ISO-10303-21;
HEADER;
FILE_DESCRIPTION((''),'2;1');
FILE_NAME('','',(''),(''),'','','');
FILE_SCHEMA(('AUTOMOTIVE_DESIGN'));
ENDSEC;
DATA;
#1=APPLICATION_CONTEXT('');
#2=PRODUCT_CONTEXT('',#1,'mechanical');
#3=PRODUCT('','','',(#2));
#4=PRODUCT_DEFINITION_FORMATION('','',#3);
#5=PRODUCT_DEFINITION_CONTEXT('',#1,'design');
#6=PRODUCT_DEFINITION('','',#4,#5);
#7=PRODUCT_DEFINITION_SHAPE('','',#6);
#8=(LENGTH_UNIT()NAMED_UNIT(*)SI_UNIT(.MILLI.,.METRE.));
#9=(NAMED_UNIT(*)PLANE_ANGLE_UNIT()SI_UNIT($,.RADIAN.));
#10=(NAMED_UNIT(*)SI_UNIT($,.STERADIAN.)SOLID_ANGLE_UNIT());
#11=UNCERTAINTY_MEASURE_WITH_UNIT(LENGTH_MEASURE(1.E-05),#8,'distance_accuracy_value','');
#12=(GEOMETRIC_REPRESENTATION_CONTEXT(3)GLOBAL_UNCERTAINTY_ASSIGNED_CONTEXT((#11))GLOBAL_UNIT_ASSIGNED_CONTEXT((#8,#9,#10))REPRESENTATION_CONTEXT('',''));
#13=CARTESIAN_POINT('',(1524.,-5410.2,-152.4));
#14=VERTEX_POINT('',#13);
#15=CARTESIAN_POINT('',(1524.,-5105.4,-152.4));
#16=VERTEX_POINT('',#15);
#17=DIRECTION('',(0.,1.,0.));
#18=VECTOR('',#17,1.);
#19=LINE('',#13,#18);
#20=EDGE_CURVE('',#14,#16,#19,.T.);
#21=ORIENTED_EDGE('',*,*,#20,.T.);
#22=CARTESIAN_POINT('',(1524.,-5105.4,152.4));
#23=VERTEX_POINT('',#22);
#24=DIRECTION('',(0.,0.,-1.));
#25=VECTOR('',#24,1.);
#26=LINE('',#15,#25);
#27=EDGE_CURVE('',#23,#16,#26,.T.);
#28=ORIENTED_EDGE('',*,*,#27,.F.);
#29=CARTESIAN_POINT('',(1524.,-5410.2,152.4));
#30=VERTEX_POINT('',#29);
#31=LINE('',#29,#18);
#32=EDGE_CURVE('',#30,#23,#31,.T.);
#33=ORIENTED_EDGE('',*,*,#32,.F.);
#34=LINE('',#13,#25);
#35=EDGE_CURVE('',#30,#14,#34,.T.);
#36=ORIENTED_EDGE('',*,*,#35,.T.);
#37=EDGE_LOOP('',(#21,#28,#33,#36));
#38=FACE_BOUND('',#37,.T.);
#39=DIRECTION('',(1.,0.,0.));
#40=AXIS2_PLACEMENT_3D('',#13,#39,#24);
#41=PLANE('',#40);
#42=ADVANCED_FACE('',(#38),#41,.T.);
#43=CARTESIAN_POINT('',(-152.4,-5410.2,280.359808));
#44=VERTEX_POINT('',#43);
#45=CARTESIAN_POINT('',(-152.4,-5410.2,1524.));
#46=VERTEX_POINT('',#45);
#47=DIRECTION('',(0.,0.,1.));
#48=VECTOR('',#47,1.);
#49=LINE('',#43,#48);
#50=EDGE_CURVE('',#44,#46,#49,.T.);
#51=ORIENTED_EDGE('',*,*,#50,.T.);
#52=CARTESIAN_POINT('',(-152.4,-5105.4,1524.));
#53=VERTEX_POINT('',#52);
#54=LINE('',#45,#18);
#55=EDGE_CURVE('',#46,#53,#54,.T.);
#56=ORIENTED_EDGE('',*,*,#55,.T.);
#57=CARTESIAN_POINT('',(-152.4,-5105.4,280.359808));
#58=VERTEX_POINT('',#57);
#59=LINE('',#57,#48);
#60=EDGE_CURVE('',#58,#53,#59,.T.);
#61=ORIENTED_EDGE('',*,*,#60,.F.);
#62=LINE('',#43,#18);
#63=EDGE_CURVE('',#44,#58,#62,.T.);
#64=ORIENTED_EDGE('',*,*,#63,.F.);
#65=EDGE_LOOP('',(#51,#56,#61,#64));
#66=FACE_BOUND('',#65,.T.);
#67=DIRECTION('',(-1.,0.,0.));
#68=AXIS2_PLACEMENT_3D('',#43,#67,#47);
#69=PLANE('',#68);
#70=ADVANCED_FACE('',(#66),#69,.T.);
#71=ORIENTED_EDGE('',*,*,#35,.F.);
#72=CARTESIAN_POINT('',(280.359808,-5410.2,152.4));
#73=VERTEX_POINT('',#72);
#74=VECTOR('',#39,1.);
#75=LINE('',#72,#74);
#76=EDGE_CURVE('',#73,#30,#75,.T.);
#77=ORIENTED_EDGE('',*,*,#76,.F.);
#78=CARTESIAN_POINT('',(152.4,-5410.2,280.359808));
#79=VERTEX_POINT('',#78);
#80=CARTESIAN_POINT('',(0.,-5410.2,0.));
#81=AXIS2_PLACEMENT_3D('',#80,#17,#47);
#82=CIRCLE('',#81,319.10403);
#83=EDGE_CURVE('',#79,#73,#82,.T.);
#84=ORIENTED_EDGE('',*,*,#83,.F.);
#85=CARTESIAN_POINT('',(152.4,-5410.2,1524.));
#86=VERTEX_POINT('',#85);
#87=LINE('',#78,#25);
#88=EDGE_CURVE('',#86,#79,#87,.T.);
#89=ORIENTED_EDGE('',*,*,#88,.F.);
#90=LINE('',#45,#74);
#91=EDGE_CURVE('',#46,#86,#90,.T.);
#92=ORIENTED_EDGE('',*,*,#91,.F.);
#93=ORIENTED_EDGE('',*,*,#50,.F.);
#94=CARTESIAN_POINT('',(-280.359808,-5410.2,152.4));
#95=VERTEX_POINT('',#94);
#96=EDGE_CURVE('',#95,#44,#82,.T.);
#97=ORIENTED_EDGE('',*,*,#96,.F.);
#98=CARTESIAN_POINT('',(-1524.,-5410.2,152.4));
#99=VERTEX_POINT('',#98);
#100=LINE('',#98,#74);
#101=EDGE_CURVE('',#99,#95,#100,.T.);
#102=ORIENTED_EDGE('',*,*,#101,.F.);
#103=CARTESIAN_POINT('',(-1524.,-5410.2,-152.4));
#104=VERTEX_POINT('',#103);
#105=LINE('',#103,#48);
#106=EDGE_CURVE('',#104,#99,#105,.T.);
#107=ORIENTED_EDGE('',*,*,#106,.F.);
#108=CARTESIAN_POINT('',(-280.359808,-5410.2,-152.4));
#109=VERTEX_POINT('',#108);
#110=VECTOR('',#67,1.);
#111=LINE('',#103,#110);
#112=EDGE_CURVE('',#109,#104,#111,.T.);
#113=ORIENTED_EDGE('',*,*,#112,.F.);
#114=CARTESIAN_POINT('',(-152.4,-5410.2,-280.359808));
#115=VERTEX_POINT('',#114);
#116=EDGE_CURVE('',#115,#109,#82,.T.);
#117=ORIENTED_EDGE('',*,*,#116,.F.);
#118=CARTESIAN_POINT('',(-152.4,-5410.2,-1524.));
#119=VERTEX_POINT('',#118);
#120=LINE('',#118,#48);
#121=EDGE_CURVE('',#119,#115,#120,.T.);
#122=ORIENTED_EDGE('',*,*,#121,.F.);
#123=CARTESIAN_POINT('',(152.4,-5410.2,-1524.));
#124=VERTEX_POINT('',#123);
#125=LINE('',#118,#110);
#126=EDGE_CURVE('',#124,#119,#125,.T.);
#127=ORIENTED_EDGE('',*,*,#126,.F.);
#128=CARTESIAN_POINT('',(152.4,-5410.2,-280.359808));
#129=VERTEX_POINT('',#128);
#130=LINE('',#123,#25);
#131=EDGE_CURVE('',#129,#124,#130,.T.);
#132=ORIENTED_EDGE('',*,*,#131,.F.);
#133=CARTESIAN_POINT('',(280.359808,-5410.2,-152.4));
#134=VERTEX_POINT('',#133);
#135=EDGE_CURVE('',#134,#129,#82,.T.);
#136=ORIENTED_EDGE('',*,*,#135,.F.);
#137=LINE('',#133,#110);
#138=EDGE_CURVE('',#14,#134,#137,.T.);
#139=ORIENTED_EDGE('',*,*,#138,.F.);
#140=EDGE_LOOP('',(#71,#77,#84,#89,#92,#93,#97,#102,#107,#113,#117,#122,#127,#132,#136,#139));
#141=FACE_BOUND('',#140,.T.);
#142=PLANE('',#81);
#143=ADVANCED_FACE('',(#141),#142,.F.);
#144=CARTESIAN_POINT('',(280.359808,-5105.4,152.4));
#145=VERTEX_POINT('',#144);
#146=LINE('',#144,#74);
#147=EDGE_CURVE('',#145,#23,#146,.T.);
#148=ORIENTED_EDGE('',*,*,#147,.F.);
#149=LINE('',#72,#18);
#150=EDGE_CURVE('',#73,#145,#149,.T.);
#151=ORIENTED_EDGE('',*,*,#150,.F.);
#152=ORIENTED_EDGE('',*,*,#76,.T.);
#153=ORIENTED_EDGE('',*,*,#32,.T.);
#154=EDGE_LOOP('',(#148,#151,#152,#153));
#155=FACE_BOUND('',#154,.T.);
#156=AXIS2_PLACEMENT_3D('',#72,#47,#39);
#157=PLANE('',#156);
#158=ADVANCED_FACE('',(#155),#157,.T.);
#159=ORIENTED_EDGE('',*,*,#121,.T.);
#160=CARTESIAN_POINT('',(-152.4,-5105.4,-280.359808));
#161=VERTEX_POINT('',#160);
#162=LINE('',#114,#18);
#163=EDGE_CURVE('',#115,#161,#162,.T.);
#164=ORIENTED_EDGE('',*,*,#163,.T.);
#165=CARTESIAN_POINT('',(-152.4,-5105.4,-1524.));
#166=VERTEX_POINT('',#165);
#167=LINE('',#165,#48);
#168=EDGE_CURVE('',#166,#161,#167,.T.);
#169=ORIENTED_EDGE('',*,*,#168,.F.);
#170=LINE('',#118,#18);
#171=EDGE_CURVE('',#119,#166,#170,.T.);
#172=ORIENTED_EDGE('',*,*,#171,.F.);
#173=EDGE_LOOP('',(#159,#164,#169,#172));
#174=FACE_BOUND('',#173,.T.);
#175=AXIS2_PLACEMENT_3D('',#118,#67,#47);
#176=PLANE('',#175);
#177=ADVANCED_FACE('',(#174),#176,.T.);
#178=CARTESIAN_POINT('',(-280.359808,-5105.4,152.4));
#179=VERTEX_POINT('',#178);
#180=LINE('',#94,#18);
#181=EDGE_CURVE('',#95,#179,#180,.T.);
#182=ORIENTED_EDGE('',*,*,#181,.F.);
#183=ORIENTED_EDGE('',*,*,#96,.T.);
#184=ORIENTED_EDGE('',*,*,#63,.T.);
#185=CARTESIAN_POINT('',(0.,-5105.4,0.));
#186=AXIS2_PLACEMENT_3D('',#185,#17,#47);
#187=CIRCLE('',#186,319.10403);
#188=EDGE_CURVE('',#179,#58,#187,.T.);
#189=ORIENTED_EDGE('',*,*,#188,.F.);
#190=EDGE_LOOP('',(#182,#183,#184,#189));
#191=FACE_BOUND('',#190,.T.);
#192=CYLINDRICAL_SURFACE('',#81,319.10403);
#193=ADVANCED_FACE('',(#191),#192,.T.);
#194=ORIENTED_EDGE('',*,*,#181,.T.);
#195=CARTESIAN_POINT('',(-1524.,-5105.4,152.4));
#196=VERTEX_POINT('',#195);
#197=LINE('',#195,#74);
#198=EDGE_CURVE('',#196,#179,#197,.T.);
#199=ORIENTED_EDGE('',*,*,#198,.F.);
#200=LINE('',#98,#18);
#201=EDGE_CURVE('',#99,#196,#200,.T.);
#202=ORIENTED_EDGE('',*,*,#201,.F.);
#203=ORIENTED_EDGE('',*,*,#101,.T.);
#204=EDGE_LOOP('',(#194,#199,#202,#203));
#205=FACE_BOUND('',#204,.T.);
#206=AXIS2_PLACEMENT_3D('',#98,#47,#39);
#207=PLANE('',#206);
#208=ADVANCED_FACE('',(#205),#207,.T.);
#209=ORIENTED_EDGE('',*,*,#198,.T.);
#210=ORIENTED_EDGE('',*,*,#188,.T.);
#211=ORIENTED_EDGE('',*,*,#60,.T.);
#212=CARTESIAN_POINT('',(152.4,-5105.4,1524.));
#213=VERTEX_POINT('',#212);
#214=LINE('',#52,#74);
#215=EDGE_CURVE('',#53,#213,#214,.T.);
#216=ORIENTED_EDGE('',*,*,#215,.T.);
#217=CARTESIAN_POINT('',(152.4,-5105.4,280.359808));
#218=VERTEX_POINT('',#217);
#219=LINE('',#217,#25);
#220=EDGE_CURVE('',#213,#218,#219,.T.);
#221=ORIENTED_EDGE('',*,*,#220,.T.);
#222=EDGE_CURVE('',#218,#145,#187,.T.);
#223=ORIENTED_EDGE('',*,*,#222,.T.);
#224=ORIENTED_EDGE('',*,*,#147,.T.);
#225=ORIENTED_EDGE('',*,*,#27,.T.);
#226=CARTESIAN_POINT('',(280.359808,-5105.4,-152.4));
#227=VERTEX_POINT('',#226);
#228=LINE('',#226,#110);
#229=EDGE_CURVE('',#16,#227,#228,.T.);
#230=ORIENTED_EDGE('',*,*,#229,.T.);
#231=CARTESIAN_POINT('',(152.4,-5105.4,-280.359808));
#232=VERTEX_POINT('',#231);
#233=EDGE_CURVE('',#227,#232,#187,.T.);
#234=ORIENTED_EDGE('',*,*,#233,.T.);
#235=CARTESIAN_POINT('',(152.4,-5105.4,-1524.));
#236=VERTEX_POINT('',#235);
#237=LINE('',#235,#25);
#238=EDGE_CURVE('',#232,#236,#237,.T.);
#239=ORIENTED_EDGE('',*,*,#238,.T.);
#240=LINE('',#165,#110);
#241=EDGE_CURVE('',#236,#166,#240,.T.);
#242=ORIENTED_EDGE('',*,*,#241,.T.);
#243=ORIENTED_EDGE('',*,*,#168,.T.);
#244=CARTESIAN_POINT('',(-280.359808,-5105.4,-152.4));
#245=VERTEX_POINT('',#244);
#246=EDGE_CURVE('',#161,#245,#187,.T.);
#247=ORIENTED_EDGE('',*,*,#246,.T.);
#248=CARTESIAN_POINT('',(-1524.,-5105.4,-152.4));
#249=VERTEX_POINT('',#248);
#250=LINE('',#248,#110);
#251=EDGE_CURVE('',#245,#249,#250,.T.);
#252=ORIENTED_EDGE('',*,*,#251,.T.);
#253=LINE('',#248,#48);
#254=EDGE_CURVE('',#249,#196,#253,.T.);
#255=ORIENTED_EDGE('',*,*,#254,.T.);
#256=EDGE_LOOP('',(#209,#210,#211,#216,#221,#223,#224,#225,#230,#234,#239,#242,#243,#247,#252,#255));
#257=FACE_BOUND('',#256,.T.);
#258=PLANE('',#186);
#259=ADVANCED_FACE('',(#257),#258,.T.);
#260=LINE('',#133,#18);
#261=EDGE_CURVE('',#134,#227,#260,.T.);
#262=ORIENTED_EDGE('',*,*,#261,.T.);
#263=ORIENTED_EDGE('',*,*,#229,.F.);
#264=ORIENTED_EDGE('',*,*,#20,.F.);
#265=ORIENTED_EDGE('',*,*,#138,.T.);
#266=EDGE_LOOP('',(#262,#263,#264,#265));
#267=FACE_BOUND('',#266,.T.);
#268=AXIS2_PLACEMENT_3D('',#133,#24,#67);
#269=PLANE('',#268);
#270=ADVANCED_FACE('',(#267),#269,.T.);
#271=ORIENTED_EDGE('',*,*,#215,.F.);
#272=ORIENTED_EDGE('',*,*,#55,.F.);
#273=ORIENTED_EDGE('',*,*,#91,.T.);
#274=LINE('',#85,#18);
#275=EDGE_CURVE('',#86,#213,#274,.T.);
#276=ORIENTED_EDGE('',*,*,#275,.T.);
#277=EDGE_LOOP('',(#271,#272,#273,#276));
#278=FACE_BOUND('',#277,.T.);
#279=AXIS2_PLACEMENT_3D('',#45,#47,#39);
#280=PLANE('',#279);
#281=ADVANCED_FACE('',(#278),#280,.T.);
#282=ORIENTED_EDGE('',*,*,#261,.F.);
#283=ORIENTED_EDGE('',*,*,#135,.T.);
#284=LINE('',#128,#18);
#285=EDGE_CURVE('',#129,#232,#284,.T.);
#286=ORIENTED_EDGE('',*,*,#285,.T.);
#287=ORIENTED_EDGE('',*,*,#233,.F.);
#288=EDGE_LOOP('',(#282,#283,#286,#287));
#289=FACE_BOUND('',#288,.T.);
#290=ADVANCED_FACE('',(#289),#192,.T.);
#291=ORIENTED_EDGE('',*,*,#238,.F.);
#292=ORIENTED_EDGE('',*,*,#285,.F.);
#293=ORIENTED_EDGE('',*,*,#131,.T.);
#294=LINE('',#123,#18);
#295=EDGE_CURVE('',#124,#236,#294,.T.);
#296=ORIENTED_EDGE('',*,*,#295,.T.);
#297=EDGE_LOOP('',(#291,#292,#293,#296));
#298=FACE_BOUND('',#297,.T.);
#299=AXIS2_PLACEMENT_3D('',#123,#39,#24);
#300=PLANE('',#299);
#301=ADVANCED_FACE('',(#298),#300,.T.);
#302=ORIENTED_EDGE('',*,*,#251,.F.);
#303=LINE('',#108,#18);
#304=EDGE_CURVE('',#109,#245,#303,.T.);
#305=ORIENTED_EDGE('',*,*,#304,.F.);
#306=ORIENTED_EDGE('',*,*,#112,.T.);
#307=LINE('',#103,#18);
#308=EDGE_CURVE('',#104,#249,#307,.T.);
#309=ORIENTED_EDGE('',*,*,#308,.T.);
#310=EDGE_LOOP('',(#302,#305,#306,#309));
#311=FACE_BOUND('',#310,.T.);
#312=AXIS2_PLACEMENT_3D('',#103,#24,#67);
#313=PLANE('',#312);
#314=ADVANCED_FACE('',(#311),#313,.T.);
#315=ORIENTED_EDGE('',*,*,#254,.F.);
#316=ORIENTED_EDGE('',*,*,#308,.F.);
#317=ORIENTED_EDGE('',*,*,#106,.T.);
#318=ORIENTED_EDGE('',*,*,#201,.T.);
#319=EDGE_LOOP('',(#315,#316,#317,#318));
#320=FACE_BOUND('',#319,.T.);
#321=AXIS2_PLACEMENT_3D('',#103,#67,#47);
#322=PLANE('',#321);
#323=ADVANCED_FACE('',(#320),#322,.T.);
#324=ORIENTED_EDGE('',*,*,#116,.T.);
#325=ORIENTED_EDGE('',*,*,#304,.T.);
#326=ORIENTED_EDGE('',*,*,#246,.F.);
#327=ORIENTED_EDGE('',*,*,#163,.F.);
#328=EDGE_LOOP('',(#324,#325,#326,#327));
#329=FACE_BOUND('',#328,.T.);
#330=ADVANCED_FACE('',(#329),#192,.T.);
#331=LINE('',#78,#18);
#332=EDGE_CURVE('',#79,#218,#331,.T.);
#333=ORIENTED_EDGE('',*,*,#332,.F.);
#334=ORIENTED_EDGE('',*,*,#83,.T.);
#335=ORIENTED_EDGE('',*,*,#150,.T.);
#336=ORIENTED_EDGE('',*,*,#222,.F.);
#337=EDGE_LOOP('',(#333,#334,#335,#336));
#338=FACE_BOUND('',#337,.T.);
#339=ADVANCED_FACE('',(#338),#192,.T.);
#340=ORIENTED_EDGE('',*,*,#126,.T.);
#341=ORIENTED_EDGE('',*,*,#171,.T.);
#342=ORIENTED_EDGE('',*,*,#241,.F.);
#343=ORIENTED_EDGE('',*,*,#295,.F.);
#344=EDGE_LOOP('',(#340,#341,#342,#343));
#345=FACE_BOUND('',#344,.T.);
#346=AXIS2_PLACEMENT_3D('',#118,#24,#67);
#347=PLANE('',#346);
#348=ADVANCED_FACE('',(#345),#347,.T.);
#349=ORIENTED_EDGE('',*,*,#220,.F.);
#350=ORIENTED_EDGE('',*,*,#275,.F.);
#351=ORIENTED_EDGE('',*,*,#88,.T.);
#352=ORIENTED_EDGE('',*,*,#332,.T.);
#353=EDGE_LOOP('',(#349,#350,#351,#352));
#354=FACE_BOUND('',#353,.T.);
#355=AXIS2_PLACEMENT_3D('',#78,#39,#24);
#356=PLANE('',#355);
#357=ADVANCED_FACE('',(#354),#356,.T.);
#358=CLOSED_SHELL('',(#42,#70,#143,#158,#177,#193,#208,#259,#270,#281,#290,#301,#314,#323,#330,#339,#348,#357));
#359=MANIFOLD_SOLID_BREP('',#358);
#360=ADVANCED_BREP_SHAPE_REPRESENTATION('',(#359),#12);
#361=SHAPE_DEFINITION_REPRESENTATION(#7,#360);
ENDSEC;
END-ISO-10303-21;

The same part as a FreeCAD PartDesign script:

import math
import FreeCAD as App
import Part
import Sketcher
Q = App.Units.Quantity

doc = App.newDocument("Part")
body = doc.addObject("PartDesign::Body", "Body")

# Sketch on XZ plane
sketch1 = doc.addObject("Sketcher::SketchObject", "Sketch")
body.addObject(sketch1)
sketch1.AttachmentSupport = (doc.XZ_Plane, [""])
sketch1.MapMode = "FlatFace"
sketch1.AttachmentOffset = App.Placement(App.Vector(0, 0, 201 * 25.4), App.Rotation())
sketch1.addGeometry(Part.LineSegment(App.Vector(-152, 280, 0), App.Vector(-152, 1524, 0)), False)
sketch1.addGeometry(Part.LineSegment(App.Vector(-152, 1524, 0), App.Vector(152, 1524, 0)), False)
sketch1.addGeometry(Part.LineSegment(App.Vector(152, 1524, 0), App.Vector(152, 280, 0)), False)
sketch1.addGeometry(Part.ArcOfCircle(Part.Circle(App.Vector(0, 0, 0), App.Vector(0, 0, 1), 319), math.radians(29), math.radians(61)), False)
sketch1.addGeometry(Part.LineSegment(App.Vector(280, 152, 0), App.Vector(1524, 152, 0)), False)
sketch1.addGeometry(Part.LineSegment(App.Vector(1524, 152, 0), App.Vector(1524, -152, 0)), False)
sketch1.addGeometry(Part.LineSegment(App.Vector(1524, -152, 0), App.Vector(280, -152, 0)), False)
sketch1.addGeometry(Part.ArcOfCircle(Part.Circle(App.Vector(0, 0, 0), App.Vector(0, 0, 1), 319), math.radians(-61), math.radians(-29)), False)
sketch1.addGeometry(Part.LineSegment(App.Vector(152, -280, 0), App.Vector(152, -1524, 0)), False)
sketch1.addGeometry(Part.LineSegment(App.Vector(152, -1524, 0), App.Vector(-152, -1524, 0)), False)
sketch1.addGeometry(Part.LineSegment(App.Vector(-152, -1524, 0), App.Vector(-152, -280, 0)), False)
sketch1.addGeometry(Part.ArcOfCircle(Part.Circle(App.Vector(0, 0, 0), App.Vector(0, 0, 1), 319), math.radians(-151), math.radians(-119)), False)
sketch1.addGeometry(Part.LineSegment(App.Vector(-280, -152, 0), App.Vector(-1524, -152, 0)), False)
sketch1.addGeometry(Part.LineSegment(App.Vector(-1524, -152, 0), App.Vector(-1524, 152, 0)), False)
sketch1.addGeometry(Part.LineSegment(App.Vector(-1524, 152, 0), App.Vector(-280, 152, 0)), False)
sketch1.addGeometry(Part.ArcOfCircle(Part.Circle(App.Vector(0, 0, 0), App.Vector(0, 0, 1), 319), math.radians(119), math.radians(151)), False)
sketch1.addConstraint(Sketcher.Constraint("Coincident", 0, 2, 1, 1))
sketch1.addConstraint(Sketcher.Constraint("Coincident", 1, 2, 2, 1))
sketch1.addConstraint(Sketcher.Constraint("Coincident", 2, 2, 3, 2))
sketch1.addConstraint(Sketcher.Constraint("Coincident", 3, 1, 4, 1))
sketch1.addConstraint(Sketcher.Constraint("Coincident", 4, 2, 5, 1))
sketch1.addConstraint(Sketcher.Constraint("Coincident", 5, 2, 6, 1))
sketch1.addConstraint(Sketcher.Constraint("Coincident", 6, 2, 7, 2))
sketch1.addConstraint(Sketcher.Constraint("Coincident", 7, 1, 8, 1))
sketch1.addConstraint(Sketcher.Constraint("Coincident", 8, 2, 9, 1))
sketch1.addConstraint(Sketcher.Constraint("Coincident", 9, 2, 10, 1))
sketch1.addConstraint(Sketcher.Constraint("Coincident", 10, 2, 11, 2))
sketch1.addConstraint(Sketcher.Constraint("Coincident", 11, 1, 12, 1))
sketch1.addConstraint(Sketcher.Constraint("Coincident", 12, 2, 13, 1))
sketch1.addConstraint(Sketcher.Constraint("Coincident", 13, 2, 14, 1))
sketch1.addConstraint(Sketcher.Constraint("Coincident", 14, 2, 15, 2))
sketch1.addConstraint(Sketcher.Constraint("Coincident", 15, 1, 0, 1))
sketch1.addConstraint(Sketcher.Constraint("Vertical", 0))
sketch1.addConstraint(Sketcher.Constraint("Horizontal", 1))
sketch1.addConstraint(Sketcher.Constraint("Vertical", 2))
sketch1.addConstraint(Sketcher.Constraint("Horizontal", 4))
sketch1.addConstraint(Sketcher.Constraint("Vertical", 5))
sketch1.addConstraint(Sketcher.Constraint("Horizontal", 6))
sketch1.addConstraint(Sketcher.Constraint("Vertical", 8))
sketch1.addConstraint(Sketcher.Constraint("Horizontal", 9))
sketch1.addConstraint(Sketcher.Constraint("Vertical", 10))
sketch1.addConstraint(Sketcher.Constraint("Horizontal", 12))
sketch1.addConstraint(Sketcher.Constraint("Vertical", 13))
sketch1.addConstraint(Sketcher.Constraint("Horizontal", 14))
sketch1.addConstraint(Sketcher.Constraint("Coincident", 3, 3, -1, 1))
sketch1.addConstraint(Sketcher.Constraint("Coincident", 7, 3, -1, 1))
sketch1.addConstraint(Sketcher.Constraint("Coincident", 11, 3, -1, 1))
sketch1.addConstraint(Sketcher.Constraint("Coincident", 15, 3, -1, 1))
sketch1.addConstraint(Sketcher.Constraint("Equal", 3, 7))
sketch1.addConstraint(Sketcher.Constraint("Equal", 7, 11))
sketch1.addConstraint(Sketcher.Constraint("Equal", 11, 15))
sketch1.addConstraint(Sketcher.Constraint("Symmetric", 0, 2, 8, 2, -1, 1))
sketch1.addConstraint(Sketcher.Constraint("Symmetric", 4, 2, 12, 2, -1, 1))
sketch1.addConstraint(Sketcher.Constraint("Horizontal", 7, 1, 10, 2))
sketch1.addConstraint(Sketcher.Constraint("Horizontal", 6, 2, 11, 1))
sketch1.addConstraint(Sketcher.Constraint("Horizontal", 4, 2, 13, 2))
sketch1.addConstraint(Sketcher.Constraint("Horizontal", 2, 2, 15, 1))
sketch1.addConstraint(Sketcher.Constraint("Equal", 14, 0))
sketch1.addConstraint(Sketcher.Constraint("Equal", 9, 5))
sketch1.addConstraint(Sketcher.Constraint("DistanceX", 1, 1, 1, 2, Q("12 in")))
sketch1.addConstraint(Sketcher.Constraint("DistanceY", -1, 1, 0, 2, Q("60 in")))
sketch1.addConstraint(Sketcher.Constraint("Radius", 3, 319.10403))
pad1 = doc.addObject("PartDesign::Pad", "Pad")
body.addObject(pad1)
pad1.Profile = sketch1
pad1.Length = Q("12 in")

doc.recompute()
